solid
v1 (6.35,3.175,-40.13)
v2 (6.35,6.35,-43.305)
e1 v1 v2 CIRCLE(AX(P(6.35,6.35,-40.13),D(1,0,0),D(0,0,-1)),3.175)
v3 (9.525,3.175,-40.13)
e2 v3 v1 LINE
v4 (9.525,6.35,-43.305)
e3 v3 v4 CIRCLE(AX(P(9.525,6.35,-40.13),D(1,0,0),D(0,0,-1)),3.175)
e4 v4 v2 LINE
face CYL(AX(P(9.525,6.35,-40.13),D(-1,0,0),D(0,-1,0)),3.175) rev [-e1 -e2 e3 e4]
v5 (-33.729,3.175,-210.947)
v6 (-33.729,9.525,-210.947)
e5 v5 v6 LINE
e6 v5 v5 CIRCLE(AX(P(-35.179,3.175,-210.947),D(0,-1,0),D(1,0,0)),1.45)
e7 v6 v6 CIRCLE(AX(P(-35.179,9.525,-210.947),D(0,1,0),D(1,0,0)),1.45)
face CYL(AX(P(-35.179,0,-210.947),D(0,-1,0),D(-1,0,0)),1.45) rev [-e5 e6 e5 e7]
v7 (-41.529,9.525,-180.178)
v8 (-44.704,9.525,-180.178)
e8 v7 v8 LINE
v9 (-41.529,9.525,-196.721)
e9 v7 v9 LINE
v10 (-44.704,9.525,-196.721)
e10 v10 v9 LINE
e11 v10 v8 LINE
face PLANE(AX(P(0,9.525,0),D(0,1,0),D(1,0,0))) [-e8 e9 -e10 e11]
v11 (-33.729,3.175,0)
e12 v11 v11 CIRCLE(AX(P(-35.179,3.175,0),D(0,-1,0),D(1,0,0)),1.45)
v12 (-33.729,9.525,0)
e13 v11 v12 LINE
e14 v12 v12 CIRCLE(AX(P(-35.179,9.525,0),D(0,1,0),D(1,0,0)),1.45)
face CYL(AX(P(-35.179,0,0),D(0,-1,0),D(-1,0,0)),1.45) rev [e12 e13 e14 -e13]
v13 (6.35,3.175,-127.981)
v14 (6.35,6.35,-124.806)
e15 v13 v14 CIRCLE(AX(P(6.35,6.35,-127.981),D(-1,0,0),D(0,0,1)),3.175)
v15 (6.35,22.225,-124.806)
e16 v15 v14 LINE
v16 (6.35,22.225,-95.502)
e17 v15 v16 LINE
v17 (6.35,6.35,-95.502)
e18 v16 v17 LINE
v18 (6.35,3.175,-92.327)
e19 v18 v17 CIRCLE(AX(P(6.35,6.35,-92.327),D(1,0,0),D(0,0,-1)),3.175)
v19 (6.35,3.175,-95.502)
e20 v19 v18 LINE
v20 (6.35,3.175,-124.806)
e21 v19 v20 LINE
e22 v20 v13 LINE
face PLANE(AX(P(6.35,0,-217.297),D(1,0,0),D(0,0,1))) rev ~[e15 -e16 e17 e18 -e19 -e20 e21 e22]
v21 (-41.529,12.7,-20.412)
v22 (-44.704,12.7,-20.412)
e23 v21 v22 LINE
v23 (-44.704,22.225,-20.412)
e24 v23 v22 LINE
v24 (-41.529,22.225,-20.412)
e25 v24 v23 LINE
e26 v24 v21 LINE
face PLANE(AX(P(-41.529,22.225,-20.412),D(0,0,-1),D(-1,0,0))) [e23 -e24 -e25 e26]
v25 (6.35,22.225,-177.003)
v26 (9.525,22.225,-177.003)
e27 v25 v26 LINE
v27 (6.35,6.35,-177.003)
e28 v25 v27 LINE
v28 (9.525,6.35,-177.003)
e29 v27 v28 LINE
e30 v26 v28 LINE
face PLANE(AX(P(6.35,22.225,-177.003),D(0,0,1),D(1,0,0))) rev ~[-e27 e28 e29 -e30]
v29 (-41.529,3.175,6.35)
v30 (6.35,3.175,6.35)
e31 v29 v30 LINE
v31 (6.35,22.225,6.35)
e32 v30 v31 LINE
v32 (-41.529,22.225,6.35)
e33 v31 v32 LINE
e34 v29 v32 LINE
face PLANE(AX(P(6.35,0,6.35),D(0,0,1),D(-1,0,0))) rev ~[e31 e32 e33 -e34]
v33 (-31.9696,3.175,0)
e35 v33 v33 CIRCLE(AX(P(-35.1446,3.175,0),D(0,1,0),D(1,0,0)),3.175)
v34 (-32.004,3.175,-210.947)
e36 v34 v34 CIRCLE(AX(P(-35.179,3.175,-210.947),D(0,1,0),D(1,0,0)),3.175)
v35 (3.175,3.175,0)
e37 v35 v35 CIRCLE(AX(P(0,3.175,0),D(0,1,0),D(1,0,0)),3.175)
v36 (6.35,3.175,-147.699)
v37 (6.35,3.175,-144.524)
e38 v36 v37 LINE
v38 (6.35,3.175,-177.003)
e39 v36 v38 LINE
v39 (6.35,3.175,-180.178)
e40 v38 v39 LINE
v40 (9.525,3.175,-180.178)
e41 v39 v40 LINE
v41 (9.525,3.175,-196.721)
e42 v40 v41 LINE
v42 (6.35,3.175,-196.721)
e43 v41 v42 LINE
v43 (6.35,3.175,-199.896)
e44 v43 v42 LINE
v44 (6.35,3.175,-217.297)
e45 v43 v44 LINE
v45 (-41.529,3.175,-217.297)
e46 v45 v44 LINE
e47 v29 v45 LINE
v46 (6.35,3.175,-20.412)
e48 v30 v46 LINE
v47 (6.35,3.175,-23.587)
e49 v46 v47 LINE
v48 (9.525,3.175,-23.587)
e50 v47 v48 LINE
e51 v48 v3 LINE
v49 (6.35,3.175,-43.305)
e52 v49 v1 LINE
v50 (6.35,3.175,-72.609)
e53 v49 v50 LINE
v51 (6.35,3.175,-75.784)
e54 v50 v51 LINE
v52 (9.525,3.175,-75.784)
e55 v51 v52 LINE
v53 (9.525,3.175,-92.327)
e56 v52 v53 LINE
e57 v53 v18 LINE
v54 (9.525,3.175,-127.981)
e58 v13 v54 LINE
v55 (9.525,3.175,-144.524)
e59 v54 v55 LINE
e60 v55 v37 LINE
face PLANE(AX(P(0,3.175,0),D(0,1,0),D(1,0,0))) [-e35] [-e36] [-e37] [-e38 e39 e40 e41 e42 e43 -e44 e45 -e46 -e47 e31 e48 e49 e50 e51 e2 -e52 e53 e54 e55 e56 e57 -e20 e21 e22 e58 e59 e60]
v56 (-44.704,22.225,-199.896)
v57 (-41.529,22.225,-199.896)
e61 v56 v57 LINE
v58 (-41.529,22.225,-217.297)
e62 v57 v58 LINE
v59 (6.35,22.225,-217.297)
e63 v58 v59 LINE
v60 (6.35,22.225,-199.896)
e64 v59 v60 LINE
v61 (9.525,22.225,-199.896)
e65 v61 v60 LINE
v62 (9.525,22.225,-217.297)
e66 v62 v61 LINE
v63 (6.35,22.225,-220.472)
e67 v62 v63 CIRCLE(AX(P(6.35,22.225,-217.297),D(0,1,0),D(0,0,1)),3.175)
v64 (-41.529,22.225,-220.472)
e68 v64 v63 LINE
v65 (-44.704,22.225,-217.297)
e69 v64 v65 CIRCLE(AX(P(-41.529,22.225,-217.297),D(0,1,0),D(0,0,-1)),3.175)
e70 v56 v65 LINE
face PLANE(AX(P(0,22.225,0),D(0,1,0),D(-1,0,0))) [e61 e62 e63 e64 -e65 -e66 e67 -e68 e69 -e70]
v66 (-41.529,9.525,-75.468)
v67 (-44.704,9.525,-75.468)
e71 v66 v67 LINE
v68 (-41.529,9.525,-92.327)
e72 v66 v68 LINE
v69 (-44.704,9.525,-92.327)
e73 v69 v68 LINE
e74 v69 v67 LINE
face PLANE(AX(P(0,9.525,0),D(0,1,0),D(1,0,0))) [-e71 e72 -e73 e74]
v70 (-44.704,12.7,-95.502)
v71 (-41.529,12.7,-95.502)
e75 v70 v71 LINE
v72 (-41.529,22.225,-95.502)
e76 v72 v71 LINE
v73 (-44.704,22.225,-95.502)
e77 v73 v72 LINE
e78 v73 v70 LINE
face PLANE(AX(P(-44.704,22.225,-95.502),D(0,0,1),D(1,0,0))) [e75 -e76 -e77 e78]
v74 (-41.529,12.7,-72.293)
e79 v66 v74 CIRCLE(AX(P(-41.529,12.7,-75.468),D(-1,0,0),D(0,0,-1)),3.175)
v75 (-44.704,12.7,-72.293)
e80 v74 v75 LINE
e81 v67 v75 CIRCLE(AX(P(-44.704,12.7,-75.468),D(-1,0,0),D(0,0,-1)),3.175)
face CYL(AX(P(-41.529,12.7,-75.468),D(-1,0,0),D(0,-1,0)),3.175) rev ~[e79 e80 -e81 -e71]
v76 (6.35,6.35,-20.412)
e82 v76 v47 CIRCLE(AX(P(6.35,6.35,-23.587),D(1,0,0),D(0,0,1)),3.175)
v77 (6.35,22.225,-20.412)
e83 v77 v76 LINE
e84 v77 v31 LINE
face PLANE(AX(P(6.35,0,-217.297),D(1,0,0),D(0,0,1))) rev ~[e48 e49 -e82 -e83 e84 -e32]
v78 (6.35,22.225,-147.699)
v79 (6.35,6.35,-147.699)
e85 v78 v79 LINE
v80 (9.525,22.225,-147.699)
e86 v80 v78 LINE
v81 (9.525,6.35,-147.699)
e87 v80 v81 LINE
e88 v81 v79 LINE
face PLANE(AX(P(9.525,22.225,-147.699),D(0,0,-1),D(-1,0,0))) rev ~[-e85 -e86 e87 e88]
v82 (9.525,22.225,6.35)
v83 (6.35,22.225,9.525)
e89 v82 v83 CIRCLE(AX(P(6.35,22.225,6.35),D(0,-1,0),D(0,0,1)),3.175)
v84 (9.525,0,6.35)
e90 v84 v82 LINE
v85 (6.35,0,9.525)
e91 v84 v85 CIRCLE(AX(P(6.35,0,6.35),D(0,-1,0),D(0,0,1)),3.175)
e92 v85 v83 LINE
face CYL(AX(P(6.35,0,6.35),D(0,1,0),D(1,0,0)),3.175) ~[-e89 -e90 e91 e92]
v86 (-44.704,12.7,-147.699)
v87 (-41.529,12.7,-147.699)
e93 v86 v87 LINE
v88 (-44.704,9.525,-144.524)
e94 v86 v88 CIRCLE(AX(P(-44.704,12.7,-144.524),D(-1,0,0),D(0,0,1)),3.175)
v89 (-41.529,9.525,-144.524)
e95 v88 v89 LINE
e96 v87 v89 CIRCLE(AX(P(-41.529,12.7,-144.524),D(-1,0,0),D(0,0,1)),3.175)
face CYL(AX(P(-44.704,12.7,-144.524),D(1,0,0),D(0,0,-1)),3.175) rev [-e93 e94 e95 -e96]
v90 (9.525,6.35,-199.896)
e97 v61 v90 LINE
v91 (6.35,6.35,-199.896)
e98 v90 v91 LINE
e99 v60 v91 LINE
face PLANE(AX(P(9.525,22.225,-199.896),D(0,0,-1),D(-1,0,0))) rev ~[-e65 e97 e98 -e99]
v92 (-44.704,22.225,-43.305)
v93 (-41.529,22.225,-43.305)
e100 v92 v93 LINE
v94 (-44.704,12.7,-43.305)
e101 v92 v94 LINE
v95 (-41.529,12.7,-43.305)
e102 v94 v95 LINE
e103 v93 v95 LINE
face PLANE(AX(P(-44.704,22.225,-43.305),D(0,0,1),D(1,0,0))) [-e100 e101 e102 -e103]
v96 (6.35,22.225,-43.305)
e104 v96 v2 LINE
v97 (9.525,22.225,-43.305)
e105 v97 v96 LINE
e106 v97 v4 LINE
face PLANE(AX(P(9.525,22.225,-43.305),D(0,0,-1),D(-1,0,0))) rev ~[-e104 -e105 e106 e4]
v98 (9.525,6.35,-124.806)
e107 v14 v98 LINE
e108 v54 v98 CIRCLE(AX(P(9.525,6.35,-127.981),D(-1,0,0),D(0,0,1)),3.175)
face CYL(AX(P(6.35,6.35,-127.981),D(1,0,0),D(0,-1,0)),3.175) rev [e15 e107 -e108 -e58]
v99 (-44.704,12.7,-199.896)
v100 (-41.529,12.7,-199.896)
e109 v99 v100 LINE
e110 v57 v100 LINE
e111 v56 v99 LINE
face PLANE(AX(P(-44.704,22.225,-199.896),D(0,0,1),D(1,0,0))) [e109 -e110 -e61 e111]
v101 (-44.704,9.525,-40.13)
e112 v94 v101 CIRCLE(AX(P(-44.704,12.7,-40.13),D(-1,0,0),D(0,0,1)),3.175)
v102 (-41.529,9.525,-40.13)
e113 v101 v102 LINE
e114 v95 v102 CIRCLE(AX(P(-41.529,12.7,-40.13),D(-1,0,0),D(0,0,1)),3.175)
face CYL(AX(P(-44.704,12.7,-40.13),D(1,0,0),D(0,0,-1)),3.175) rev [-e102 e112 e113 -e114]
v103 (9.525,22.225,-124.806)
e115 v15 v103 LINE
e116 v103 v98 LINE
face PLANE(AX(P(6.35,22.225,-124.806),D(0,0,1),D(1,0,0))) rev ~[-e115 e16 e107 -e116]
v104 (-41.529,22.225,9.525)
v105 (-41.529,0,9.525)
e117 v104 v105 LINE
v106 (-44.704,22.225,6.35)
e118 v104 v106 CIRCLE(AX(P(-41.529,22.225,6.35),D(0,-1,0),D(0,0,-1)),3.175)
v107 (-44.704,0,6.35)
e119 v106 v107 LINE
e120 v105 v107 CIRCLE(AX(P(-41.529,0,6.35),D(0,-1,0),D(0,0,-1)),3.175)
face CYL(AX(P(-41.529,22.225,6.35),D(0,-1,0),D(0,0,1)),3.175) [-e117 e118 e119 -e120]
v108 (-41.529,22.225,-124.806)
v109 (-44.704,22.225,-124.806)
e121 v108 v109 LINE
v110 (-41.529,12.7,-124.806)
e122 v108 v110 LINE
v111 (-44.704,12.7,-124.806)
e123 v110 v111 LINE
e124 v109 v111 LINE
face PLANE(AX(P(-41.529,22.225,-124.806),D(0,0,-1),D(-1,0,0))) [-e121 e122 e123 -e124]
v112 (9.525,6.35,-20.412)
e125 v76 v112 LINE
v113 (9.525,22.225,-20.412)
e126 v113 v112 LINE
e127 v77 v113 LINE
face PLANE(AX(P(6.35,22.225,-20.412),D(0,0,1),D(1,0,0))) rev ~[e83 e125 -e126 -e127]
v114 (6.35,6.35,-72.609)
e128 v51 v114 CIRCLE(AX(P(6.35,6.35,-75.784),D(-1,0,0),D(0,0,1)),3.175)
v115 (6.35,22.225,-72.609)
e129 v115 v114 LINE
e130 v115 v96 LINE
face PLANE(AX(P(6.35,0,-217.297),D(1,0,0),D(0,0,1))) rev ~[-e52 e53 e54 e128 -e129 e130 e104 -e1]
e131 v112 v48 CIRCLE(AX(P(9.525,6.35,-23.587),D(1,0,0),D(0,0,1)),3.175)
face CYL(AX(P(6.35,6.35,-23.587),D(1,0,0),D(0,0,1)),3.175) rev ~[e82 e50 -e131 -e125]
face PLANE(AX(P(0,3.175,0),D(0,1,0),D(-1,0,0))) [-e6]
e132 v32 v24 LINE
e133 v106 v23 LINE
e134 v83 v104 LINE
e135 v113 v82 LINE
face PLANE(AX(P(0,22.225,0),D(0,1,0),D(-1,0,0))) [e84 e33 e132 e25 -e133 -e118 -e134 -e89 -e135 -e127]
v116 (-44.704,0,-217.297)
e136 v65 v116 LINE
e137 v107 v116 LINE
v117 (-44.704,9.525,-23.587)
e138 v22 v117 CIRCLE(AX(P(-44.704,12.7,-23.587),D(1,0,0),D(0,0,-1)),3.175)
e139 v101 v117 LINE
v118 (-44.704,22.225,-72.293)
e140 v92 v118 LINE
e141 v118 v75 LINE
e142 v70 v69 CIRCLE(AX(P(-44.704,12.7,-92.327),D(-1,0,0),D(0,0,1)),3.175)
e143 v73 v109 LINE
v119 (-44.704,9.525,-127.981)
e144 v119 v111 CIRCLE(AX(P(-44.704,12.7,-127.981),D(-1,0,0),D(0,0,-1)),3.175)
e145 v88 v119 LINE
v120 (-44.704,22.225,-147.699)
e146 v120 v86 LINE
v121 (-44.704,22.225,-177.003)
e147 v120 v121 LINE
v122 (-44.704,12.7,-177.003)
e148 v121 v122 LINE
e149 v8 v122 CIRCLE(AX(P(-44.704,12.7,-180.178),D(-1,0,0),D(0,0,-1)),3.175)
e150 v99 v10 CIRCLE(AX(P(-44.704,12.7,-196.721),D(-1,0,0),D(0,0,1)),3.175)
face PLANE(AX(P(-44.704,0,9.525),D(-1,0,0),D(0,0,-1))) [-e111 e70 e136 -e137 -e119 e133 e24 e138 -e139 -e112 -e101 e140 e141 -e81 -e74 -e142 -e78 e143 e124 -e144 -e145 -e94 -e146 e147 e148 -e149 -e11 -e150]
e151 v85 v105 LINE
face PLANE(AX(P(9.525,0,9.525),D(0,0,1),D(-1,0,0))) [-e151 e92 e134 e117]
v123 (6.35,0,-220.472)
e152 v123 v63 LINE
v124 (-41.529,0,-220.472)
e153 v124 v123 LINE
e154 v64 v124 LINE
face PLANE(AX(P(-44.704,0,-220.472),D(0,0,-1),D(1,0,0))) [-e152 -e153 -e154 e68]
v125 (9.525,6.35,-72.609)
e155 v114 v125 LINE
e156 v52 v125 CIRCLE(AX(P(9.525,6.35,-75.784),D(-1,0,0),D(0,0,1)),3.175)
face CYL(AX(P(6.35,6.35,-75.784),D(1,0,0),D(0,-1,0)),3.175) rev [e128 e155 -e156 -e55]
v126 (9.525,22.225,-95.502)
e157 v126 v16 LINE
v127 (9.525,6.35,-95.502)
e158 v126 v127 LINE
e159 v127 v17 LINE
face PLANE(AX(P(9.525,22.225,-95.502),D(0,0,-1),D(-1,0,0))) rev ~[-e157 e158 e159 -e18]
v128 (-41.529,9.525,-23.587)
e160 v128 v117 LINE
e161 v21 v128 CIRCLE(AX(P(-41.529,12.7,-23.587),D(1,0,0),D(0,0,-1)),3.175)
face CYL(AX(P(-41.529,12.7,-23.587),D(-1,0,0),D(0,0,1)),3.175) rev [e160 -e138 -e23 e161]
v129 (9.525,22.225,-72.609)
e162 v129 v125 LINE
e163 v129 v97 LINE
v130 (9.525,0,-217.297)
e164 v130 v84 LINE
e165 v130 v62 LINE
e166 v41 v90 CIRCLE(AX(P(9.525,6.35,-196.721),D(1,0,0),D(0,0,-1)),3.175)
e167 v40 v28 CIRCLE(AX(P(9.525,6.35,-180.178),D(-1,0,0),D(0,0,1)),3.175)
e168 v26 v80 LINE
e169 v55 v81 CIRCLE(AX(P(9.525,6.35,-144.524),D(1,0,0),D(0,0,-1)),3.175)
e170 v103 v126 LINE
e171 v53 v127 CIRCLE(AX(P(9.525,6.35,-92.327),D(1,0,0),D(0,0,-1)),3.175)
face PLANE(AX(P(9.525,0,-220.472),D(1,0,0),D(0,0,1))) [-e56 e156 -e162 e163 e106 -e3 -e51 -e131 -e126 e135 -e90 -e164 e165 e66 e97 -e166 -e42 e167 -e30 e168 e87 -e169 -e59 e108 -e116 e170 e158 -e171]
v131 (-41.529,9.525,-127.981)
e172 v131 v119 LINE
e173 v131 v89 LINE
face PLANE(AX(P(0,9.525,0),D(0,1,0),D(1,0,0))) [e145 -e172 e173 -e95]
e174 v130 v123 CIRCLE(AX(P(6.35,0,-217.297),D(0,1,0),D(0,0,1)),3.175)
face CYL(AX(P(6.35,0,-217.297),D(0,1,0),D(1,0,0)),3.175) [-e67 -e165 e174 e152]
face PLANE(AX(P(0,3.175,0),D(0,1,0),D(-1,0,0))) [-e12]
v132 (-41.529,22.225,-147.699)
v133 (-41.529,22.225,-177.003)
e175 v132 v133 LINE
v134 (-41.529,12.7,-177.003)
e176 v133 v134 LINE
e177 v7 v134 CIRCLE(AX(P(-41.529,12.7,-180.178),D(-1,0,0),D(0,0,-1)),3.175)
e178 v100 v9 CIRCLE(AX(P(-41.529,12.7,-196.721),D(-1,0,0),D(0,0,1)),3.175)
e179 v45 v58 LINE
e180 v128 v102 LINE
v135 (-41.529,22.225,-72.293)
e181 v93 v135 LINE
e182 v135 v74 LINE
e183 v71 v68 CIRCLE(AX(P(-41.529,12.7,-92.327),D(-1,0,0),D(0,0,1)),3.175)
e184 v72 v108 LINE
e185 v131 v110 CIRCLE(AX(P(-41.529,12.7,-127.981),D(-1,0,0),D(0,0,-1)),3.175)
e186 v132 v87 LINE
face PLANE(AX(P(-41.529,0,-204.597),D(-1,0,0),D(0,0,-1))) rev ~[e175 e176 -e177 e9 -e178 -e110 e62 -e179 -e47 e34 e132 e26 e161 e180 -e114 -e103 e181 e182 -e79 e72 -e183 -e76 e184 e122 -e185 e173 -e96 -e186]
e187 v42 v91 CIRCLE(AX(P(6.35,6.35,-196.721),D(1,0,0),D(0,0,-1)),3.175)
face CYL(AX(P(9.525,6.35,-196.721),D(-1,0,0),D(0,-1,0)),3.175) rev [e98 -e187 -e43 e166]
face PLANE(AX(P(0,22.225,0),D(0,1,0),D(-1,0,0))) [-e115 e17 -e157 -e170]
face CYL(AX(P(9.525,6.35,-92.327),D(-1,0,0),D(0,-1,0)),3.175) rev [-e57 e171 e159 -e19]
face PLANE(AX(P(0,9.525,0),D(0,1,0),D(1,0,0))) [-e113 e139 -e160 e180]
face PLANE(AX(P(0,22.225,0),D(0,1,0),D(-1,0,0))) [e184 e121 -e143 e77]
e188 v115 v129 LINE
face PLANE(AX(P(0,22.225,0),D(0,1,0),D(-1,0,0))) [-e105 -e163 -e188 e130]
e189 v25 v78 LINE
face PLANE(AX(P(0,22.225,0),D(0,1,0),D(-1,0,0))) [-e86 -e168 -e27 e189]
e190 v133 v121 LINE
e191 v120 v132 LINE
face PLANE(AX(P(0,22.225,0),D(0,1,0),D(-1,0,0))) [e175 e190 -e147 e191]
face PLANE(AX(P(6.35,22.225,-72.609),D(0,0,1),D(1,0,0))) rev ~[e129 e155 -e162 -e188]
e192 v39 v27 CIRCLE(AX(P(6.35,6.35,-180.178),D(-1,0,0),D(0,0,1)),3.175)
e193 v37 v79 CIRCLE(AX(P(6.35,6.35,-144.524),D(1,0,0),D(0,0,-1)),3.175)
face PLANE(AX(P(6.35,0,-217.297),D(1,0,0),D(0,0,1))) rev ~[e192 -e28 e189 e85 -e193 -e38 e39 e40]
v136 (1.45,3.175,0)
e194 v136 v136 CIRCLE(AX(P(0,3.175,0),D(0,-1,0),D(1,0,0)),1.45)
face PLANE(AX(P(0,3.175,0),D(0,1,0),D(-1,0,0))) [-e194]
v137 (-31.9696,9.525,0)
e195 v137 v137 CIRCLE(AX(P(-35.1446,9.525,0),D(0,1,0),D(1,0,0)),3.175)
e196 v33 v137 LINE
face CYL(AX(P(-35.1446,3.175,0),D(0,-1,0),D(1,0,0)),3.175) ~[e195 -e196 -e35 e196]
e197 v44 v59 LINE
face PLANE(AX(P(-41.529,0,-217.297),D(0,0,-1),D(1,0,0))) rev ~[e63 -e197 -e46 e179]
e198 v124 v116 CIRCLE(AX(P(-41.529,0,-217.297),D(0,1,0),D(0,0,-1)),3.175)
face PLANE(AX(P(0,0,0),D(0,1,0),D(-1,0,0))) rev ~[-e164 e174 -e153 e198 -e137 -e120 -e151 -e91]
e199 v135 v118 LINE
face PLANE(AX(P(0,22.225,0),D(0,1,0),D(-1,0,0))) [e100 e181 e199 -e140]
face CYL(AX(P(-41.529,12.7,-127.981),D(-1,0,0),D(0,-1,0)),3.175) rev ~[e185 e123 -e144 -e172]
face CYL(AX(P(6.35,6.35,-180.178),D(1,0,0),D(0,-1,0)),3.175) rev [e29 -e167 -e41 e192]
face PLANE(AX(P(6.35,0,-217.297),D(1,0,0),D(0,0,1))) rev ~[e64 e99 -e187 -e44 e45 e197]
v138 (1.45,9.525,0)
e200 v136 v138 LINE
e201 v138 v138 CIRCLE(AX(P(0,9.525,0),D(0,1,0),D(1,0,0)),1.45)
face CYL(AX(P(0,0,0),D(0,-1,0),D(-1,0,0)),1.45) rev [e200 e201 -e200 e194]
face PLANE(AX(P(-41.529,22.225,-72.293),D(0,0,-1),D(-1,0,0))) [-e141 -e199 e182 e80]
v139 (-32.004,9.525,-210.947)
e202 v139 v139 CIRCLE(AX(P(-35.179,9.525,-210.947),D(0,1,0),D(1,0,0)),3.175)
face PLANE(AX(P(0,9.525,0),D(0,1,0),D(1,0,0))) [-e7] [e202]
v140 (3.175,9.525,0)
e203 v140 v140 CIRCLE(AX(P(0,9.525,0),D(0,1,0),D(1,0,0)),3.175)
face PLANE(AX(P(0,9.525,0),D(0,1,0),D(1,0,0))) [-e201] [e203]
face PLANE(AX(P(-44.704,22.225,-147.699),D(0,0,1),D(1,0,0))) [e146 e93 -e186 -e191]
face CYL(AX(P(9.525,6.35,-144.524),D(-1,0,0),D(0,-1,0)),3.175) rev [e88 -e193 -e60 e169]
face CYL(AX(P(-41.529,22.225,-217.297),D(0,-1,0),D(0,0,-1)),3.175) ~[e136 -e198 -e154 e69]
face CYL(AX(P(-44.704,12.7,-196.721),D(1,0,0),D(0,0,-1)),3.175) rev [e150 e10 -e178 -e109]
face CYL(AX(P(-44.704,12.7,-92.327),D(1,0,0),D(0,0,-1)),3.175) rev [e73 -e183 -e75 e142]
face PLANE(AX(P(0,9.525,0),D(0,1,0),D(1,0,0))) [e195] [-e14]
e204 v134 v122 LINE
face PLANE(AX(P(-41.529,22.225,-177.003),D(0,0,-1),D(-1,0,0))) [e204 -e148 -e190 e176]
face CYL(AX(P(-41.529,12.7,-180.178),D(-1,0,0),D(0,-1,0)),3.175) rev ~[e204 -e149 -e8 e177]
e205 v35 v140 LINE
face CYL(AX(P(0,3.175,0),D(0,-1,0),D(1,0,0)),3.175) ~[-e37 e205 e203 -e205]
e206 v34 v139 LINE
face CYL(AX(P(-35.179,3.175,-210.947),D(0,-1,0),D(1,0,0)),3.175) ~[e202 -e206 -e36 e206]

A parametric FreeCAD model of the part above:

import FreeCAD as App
import Part
import Sketcher
from FreeCAD import Vector
Q = App.Units.Quantity


def edges_at(feature, points):
    """Names of the edges that pass closest to the given points."""
    edges = feature.Shape.Edges
    near = lambda p: min(range(len(edges)), key=lambda i: edges[i].distToShape(Part.Vertex(*p))[0])
    return sorted({f"Edge{near(p) + 1}" for p in points})

doc = App.newDocument("Part")
body = doc.addObject("PartDesign::Body", "Body")

sketch1 = body.newObject("Sketcher::SketchObject", "Sketch")
sketch1.AttachmentSupport = (doc.getObject("XZ_Plane"), [""])
sketch1.MapMode = "FlatFace"
sketch1.addGeometry(Part.LineSegment(Vector(-44.7, 9.5, 0), Vector(9.5, 9.5, 0)), False)
sketch1.addGeometry(Part.LineSegment(Vector(9.5, 9.5, 0), Vector(9.5, -220.5, 0)), False)
sketch1.addGeometry(Part.LineSegment(Vector(9.5, -220.5, 0), Vector(-44.7, -220.5, 0)), False)
sketch1.addGeometry(Part.LineSegment(Vector(-44.7, -220.5, 0), Vector(-44.7, 9.5, 0)), False)
sketch1.addGeometry(Part.Circle(Vector(0, 0, 0), Vector(0, 0, 1), 1.4), False)
sketch1.addGeometry(Part.Circle(Vector(-35.2, 0, 0), Vector(0, 0, 1), 1.4), False)
sketch1.addGeometry(Part.Circle(Vector(-35.2, -210.9, 0), Vector(0, 0, 1), 1.4), False)
sketch1.addConstraint(Sketcher.Constraint("Coincident", 0, 2, 1, 1))
sketch1.addConstraint(Sketcher.Constraint("Coincident", 1, 2, 2, 1))
sketch1.addConstraint(Sketcher.Constraint("Coincident", 2, 2, 3, 1))
sketch1.addConstraint(Sketcher.Constraint("Coincident", 3, 2, 0, 1))
sketch1.addConstraint(Sketcher.Constraint("Horizontal", 0))
sketch1.addConstraint(Sketcher.Constraint("Vertical", 1))
sketch1.addConstraint(Sketcher.Constraint("Horizontal", 2))
sketch1.addConstraint(Sketcher.Constraint("Vertical", 3))
sketch1.addConstraint(Sketcher.Constraint("Coincident", 4, 3, -1, 1))
sketch1.addConstraint(Sketcher.Constraint("Equal", 4, 5))
sketch1.addConstraint(Sketcher.Constraint("Equal", 5, 6))
sketch1.addConstraint(Sketcher.Constraint("PointOnObject", 5, 3, -1))
sketch1.addConstraint(Sketcher.Constraint("Vertical", 5, 3, 6, 3))
sketch1.addConstraint(Sketcher.Constraint("Diameter", 4, Q("2.9 mm")))
sketch1.addConstraint(Sketcher.Constraint("DistanceX", 5, 3, -1, 1, Q("1.385 in")))
sketch1.addConstraint(Sketcher.Constraint("DistanceY", 6, 3, -1, 1, Q("8.305 in")))
sketch1.addConstraint(Sketcher.Constraint("DistanceX", 0, 1, 0, 2, Q("2.135 in")))
sketch1.addConstraint(Sketcher.Constraint("DistanceY", 1, 2, 1, 1, Q("9.055 in")))
sketch1.addConstraint(Sketcher.Constraint("DistanceY", 1, 2, -1, 1, Q("8.68 in")))
sketch1.addConstraint(Sketcher.Constraint("DistanceX", 2, 2, -1, 1, Q("1.76 in")))
pad1 = body.newObject("PartDesign::Pad", "Pad")
pad1.Profile = sketch1
pad1.Length = Q("0.125 in")
pad1.Reversed = True

sketch2 = body.newObject("Sketcher::SketchObject", "Sketch001")
sketch2.AttachmentSupport = (doc.getObject("XZ_Plane"), [""])
sketch2.MapMode = "FlatFace"
sketch2.addGeometry(Part.LineSegment(Vector(-45, 10, 0), Vector(10, 10, 0)), False)
sketch2.addGeometry(Part.LineSegment(Vector(10, 10, 0), Vector(10, -220, 0)), False)
sketch2.addGeometry(Part.LineSegment(Vector(10, -220, 0), Vector(-45, -220, 0)), False)
sketch2.addGeometry(Part.LineSegment(Vector(-45, -220, 0), Vector(-45, 10, 0)), False)
sketch2.addGeometry(Part.LineSegment(Vector(-42, -217, 0), Vector(6, -217, 0)), False)
sketch2.addGeometry(Part.LineSegment(Vector(6, -217, 0), Vector(6, 6, 0)), False)
sketch2.addGeometry(Part.LineSegment(Vector(6, 6, 0), Vector(-42, 6, 0)), False)
sketch2.addGeometry(Part.LineSegment(Vector(-42, 6, 0), Vector(-42, -217, 0)), False)
sketch2.addConstraint(Sketcher.Constraint("Coincident", 0, 2, 1, 1))
sketch2.addConstraint(Sketcher.Constraint("Coincident", 1, 2, 2, 1))
sketch2.addConstraint(Sketcher.Constraint("Coincident", 2, 2, 3, 1))
sketch2.addConstraint(Sketcher.Constraint("Coincident", 3, 2, 0, 1))
sketch2.addConstraint(Sketcher.Constraint("Coincident", 4, 2, 5, 1))
sketch2.addConstraint(Sketcher.Constraint("Coincident", 5, 2, 6, 1))
sketch2.addConstraint(Sketcher.Constraint("Coincident", 6, 2, 7, 1))
sketch2.addConstraint(Sketcher.Constraint("Coincident", 7, 2, 4, 1))
sketch2.addConstraint(Sketcher.Constraint("Horizontal", 0))
sketch2.addConstraint(Sketcher.Constraint("Vertical", 1))
sketch2.addConstraint(Sketcher.Constraint("Horizontal", 2))
sketch2.addConstraint(Sketcher.Constraint("Vertical", 3))
sketch2.addConstraint(Sketcher.Constraint("Horizontal", 4))
sketch2.addConstraint(Sketcher.Constraint("Vertical", 5))
sketch2.addConstraint(Sketcher.Constraint("Horizontal", 6))
sketch2.addConstraint(Sketcher.Constraint("Vertical", 7))
sketch2.addConstraint(Sketcher.Constraint("DistanceX", 4, 2, 1, 2, Q("0.125 in")))
sketch2.addConstraint(Sketcher.Constraint("DistanceY", 1, 2, 4, 2, Q("0.125 in")))
sketch2.addConstraint(Sketcher.Constraint("DistanceY", 5, 2, 0, 2, Q("0.125 in")))
sketch2.addConstraint(Sketcher.Constraint("DistanceX", 3, 2, 6, 2, Q("0.125 in")))
sketch2.addConstraint(Sketcher.Constraint("DistanceX", 0, 1, 0, 2, Q("2.135 in")))
sketch2.addConstraint(Sketcher.Constraint("DistanceY", 1, 2, 1, 1, Q("9.055 in")))
sketch2.addConstraint(Sketcher.Constraint("DistanceY", 1, 2, -1, 1, Q("8.68 in")))
sketch2.addConstraint(Sketcher.Constraint("DistanceX", 2, 2, -1, 1, Q("1.76 in")))
pad2 = body.newObject("PartDesign::Pad", "Pad001")
pad2.Profile = sketch2
pad2.Length = Q("0.875 in")
pad2.Reversed = True

sketch3 = body.newObject("Sketcher::SketchObject", "Sketch002")
sketch3.AttachmentSupport = (doc.getObject("XZ_Plane"), [""])
sketch3.MapMode = "FlatFace"
sketch3.AttachmentOffset = App.Placement(Vector(0, 0, -0.125 * 25.4), App.Rotation())
sketch3.addGeometry(Part.Circle(Vector(-35.1, 0, 0), Vector(0, 0, 1), 3.2), False)
sketch3.addGeometry(Part.Circle(Vector(-35.2, 0, 0), Vector(0, 0, 1), 1.4), False)
sketch3.addGeometry(Part.Circle(Vector(0, 0, 0), Vector(0, 0, 1), 3.2), False)
sketch3.addGeometry(Part.Circle(Vector(0, 0, 0), Vector(0, 0, 1), 1.4), False)
sketch3.addGeometry(Part.Circle(Vector(-35.2, -210.9, 0), Vector(0, 0, 1), 3.2), False)
sketch3.addGeometry(Part.Circle(Vector(-35.2, -210.9, 0), Vector(0, 0, 1), 1.4), False)
sketch3.addConstraint(Sketcher.Constraint("Coincident", 2, 3, -1, 1))
sketch3.addConstraint(Sketcher.Constraint("Coincident", 3, 3, -1, 1))
sketch3.addConstraint(Sketcher.Constraint("Coincident", 5, 3, 4, 3))
sketch3.addConstraint(Sketcher.Constraint("Equal", 0, 2))
sketch3.addConstraint(Sketcher.Constraint("Equal", 1, 3))
sketch3.addConstraint(Sketcher.Constraint("Equal", 2, 4))
sketch3.addConstraint(Sketcher.Constraint("Equal", 3, 5))
sketch3.addConstraint(Sketcher.Constraint("PointOnObject", 0, 3, -1))
sketch3.addConstraint(Sketcher.Constraint("PointOnObject", 1, 3, -1))
sketch3.addConstraint(Sketcher.Constraint("Vertical", 1, 3, 4, 3))
sketch3.addConstraint(Sketcher.Constraint("Diameter", 0, Q("0.25 in")))
sketch3.addConstraint(Sketcher.Constraint("Diameter", 1, Q("2.9 mm")))
sketch3.addConstraint(Sketcher.Constraint("DistanceX", 1, 3, -1, 1, Q("1.385 in")))
sketch3.addConstraint(Sketcher.Constraint("DistanceY", 4, 3, -1, 1, Q("8.305 in")))
sketch3.addConstraint(Sketcher.Constraint("DistanceX", 0, 3, -1, 1, Q("35.1446 mm")))
pad3 = body.newObject("PartDesign::Pad", "Pad002")
pad3.Profile = sketch3
pad3.Length = Q("0.25 in")
pad3.Reversed = True

sketch4 = body.newObject("Sketcher::SketchObject", "Sketch003")
sketch4.AttachmentSupport = (doc.getObject("XZ_Plane"), [""])
sketch4.MapMode = "FlatFace"
sketch4.addGeometry(Part.Circle(Vector(0, 0, 0), Vector(0, 0, 1), 1.4), False)
sketch4.addGeometry(Part.Circle(Vector(-35.2, 0, 0), Vector(0, 0, 1), 1.4), False)
sketch4.addGeometry(Part.Circle(Vector(-35.2, -210.9, 0), Vector(0, 0, 1), 1.4), False)
sketch4.addConstraint(Sketcher.Constraint("Coincident", 0, 3, -1, 1))
sketch4.addConstraint(Sketcher.Constraint("Equal", 0, 1))
sketch4.addConstraint(Sketcher.Constraint("Equal", 1, 2))
sketch4.addConstraint(Sketcher.Constraint("PointOnObject", 1, 3, -1))
sketch4.addConstraint(Sketcher.Constraint("Vertical", 1, 3, 2, 3))
sketch4.addConstraint(Sketcher.Constraint("Diameter", 0, Q("2.9 mm")))
sketch4.addConstraint(Sketcher.Constraint("DistanceX", 1, 3, -1, 1, Q("1.385 in")))
sketch4.addConstraint(Sketcher.Constraint("DistanceY", 2, 3, -1, 1, Q("8.305 in")))
pad4 = body.newObject("PartDesign::Pad", "Pad003")
pad4.Profile = sketch4
pad4.Length = Q("0.125 in")
pad4.Reversed = True

sketch5 = body.newObject("Sketcher::SketchObject", "Sketch004")
sketch5.AttachmentSupport = (doc.getObject("XZ_Plane"), [""])
sketch5.MapMode = "FlatFace"
sketch5.AttachmentOffset = App.Placement(Vector(0, 0, -0.875 * 25.4), App.Rotation())
sketch5.addGeometry(Part.LineSegment(Vector(-41.5, -199.9, 0), Vector(-44.7, -199.9, 0)), False)
sketch5.addGeometry(Part.LineSegment(Vector(-44.7, -199.9, 0), Vector(-44.7, -177, 0)), False)
sketch5.addGeometry(Part.LineSegment(Vector(-44.7, -177, 0), Vector(-41.5, -177, 0)), False)
sketch5.addGeometry(Part.LineSegment(Vector(-41.5, -177, 0), Vector(-41.5, -199.9, 0)), False)
sketch5.addGeometry(Part.LineSegment(Vector(-41.5, -147.7, 0), Vector(-44.7, -147.7, 0)), False)
sketch5.addGeometry(Part.LineSegment(Vector(-44.7, -147.7, 0), Vector(-44.7, -124.8, 0)), False)
sketch5.addGeometry(Part.LineSegment(Vector(-44.7, -124.8, 0), Vector(-41.5, -124.8, 0)), False)
sketch5.addGeometry(Part.LineSegment(Vector(-41.5, -124.8, 0), Vector(-41.5, -147.7, 0)), False)
sketch5.addGeometry(Part.LineSegment(Vector(-41.5, -95.5, 0), Vector(-44.7, -95.5, 0)), False)
sketch5.addGeometry(Part.LineSegment(Vector(-44.7, -95.5, 0), Vector(-44.7, -72.3, 0)), False)
sketch5.addGeometry(Part.LineSegment(Vector(-44.7, -72.3, 0), Vector(-41.5, -72.3, 0)), False)
sketch5.addGeometry(Part.LineSegment(Vector(-41.5, -72.3, 0), Vector(-41.5, -95.5, 0)), False)
sketch5.addGeometry(Part.LineSegment(Vector(-41.5, -43.3, 0), Vector(-44.7, -43.3, 0)), False)
sketch5.addGeometry(Part.LineSegment(Vector(-44.7, -43.3, 0), Vector(-44.7, -20.4, 0)), False)
sketch5.addGeometry(Part.LineSegment(Vector(-44.7, -20.4, 0), Vector(-41.5, -20.4, 0)), False)
sketch5.addGeometry(Part.LineSegment(Vector(-41.5, -20.4, 0), Vector(-41.5, -43.3, 0)), False)
sketch5.addConstraint(Sketcher.Constraint("Coincident", 0, 2, 1, 1))
sketch5.addConstraint(Sketcher.Constraint("Coincident", 1, 2, 2, 1))
sketch5.addConstraint(Sketcher.Constraint("Coincident", 2, 2, 3, 1))
sketch5.addConstraint(Sketcher.Constraint("Coincident", 3, 2, 0, 1))
sketch5.addConstraint(Sketcher.Constraint("Coincident", 4, 2, 5, 1))
sketch5.addConstraint(Sketcher.Constraint("Coincident", 5, 2, 6, 1))
sketch5.addConstraint(Sketcher.Constraint("Coincident", 6, 2, 7, 1))
sketch5.addConstraint(Sketcher.Constraint("Coincident", 7, 2, 4, 1))
sketch5.addConstraint(Sketcher.Constraint("Coincident", 8, 2, 9, 1))
sketch5.addConstraint(Sketcher.Constraint("Coincident", 9, 2, 10, 1))
sketch5.addConstraint(Sketcher.Constraint("Coincident", 10, 2, 11, 1))
sketch5.addConstraint(Sketcher.Constraint("Coincident", 11, 2, 8, 1))
sketch5.addConstraint(Sketcher.Constraint("Coincident", 12, 2, 13, 1))
sketch5.addConstraint(Sketcher.Constraint("Coincident", 13, 2, 14, 1))
sketch5.addConstraint(Sketcher.Constraint("Coincident", 14, 2, 15, 1))
sketch5.addConstraint(Sketcher.Constraint("Coincident", 15, 2, 12, 1))
sketch5.addConstraint(Sketcher.Constraint("Horizontal", 0))
sketch5.addConstraint(Sketcher.Constraint("Vertical", 1))
sketch5.addConstraint(Sketcher.Constraint("Horizontal", 2))
sketch5.addConstraint(Sketcher.Constraint("Vertical", 3))
sketch5.addConstraint(Sketcher.Constraint("Horizontal", 4))
sketch5.addConstraint(Sketcher.Constraint("Vertical", 5))
sketch5.addConstraint(Sketcher.Constraint("Horizontal", 6))
sketch5.addConstraint(Sketcher.Constraint("Vertical", 7))
sketch5.addConstraint(Sketcher.Constraint("Horizontal", 8))
sketch5.addConstraint(Sketcher.Constraint("Vertical", 9))
sketch5.addConstraint(Sketcher.Constraint("Horizontal", 10))
sketch5.addConstraint(Sketcher.Constraint("Vertical", 11))
sketch5.addConstraint(Sketcher.Constraint("Horizontal", 12))
sketch5.addConstraint(Sketcher.Constraint("Vertical", 13))
sketch5.addConstraint(Sketcher.Constraint("Horizontal", 14))
sketch5.addConstraint(Sketcher.Constraint("Vertical", 15))
sketch5.addConstraint(Sketcher.Constraint("Vertical", 1, 2, 4, 2))
sketch5.addConstraint(Sketcher.Constraint("Vertical", 3, 2, 6, 2))
sketch5.addConstraint(Sketcher.Constraint("Vertical", 5, 2, 8, 2))
sketch5.addConstraint(Sketcher.Constraint("Vertical", 7, 2, 10, 2))
sketch5.addConstraint(Sketcher.Constraint("Vertical", 9, 2, 12, 2))
sketch5.addConstraint(Sketcher.Constraint("Vertical", 11, 2, 14, 2))
sketch5.addConstraint(Sketcher.Constraint("Equal", 3, 5))
sketch5.addConstraint(Sketcher.Constraint("Equal", 7, 13))
sketch5.addConstraint(Sketcher.Constraint("DistanceX", 0, 2, 0, 1, Q("0.125 in")))
sketch5.addConstraint(Sketcher.Constraint("DistanceX", 0, 2, -1, 1, Q("1.76 in")))
sketch5.addConstraint(Sketcher.Constraint("DistanceY", 1, 1, 1, 2, Q("0.9013 in")))
sketch5.addConstraint(Sketcher.Constraint("DistanceY", 0, 2, 4, 2, Q("2.055 in")))
sketch5.addConstraint(Sketcher.Constraint("DistanceY", 4, 2, 8, 2, Q("2.055 in")))
sketch5.addConstraint(Sketcher.Constraint("DistanceY", 8, 2, 12, 2, Q("2.055 in")))
sketch5.addConstraint(Sketcher.Constraint("DistanceY", 9, 1, 9, 2, Q("23.209 mm")))
sketch5.addConstraint(Sketcher.Constraint("DistanceY", 0, 2, -1, 1, Q("199.896 mm")))
pocket1 = body.newObject("PartDesign::Pocket", "Pocket")
pocket1.Profile = sketch5
pocket1.Length = Q("0.5 in")
pocket1.Reversed = True

sketch6 = body.newObject("Sketcher::SketchObject", "Sketch005")
sketch6.AttachmentSupport = (doc.getObject("XZ_Plane"), [""])
sketch6.MapMode = "FlatFace"
sketch6.AttachmentOffset = App.Placement(Vector(0, 0, -0.875 * 25.4), App.Rotation())
sketch6.addGeometry(Part.LineSegment(Vector(9.5, -177, 0), Vector(9.5, -199.9, 0)), False)
sketch6.addGeometry(Part.LineSegment(Vector(9.5, -199.9, 0), Vector(6.3, -199.9, 0)), False)
sketch6.addGeometry(Part.LineSegment(Vector(6.3, -199.9, 0), Vector(6.3, -177, 0)), False)
sketch6.addGeometry(Part.LineSegment(Vector(6.3, -177, 0), Vector(9.5, -177, 0)), False)
sketch6.addGeometry(Part.LineSegment(Vector(9.5, -124.8, 0), Vector(9.5, -147.7, 0)), False)
sketch6.addGeometry(Part.LineSegment(Vector(9.5, -147.7, 0), Vector(6.3, -147.7, 0)), False)
sketch6.addGeometry(Part.LineSegment(Vector(6.3, -147.7, 0), Vector(6.3, -124.8, 0)), False)
sketch6.addGeometry(Part.LineSegment(Vector(6.3, -124.8, 0), Vector(9.5, -124.8, 0)), False)
sketch6.addGeometry(Part.LineSegment(Vector(9.5, -72.6, 0), Vector(9.5, -95.5, 0)), False)
sketch6.addGeometry(Part.LineSegment(Vector(9.5, -95.5, 0), Vector(6.3, -95.5, 0)), False)
sketch6.addGeometry(Part.LineSegment(Vector(6.3, -95.5, 0), Vector(6.3, -72.6, 0)), False)
sketch6.addGeometry(Part.LineSegment(Vector(6.3, -72.6, 0), Vector(9.5, -72.6, 0)), False)
sketch6.addGeometry(Part.LineSegment(Vector(9.5, -20.4, 0), Vector(9.5, -43.3, 0)), False)
sketch6.addGeometry(Part.LineSegment(Vector(9.5, -43.3, 0), Vector(6.3, -43.3, 0)), False)
sketch6.addGeometry(Part.LineSegment(Vector(6.3, -43.3, 0), Vector(6.3, -20.4, 0)), False)
sketch6.addGeometry(Part.LineSegment(Vector(6.3, -20.4, 0), Vector(9.5, -20.4, 0)), False)
sketch6.addConstraint(Sketcher.Constraint("Coincident", 0, 2, 1, 1))
sketch6.addConstraint(Sketcher.Constraint("Coincident", 1, 2, 2, 1))
sketch6.addConstraint(Sketcher.Constraint("Coincident", 2, 2, 3, 1))
sketch6.addConstraint(Sketcher.Constraint("Coincident", 3, 2, 0, 1))
sketch6.addConstraint(Sketcher.Constraint("Coincident", 4, 2, 5, 1))
sketch6.addConstraint(Sketcher.Constraint("Coincident", 5, 2, 6, 1))
sketch6.addConstraint(Sketcher.Constraint("Coincident", 6, 2, 7, 1))
sketch6.addConstraint(Sketcher.Constraint("Coincident", 7, 2, 4, 1))
sketch6.addConstraint(Sketcher.Constraint("Coincident", 8, 2, 9, 1))
sketch6.addConstraint(Sketcher.Constraint("Coincident", 9, 2, 10, 1))
sketch6.addConstraint(Sketcher.Constraint("Coincident", 10, 2, 11, 1))
sketch6.addConstraint(Sketcher.Constraint("Coincident", 11, 2, 8, 1))
sketch6.addConstraint(Sketcher.Constraint("Coincident", 12, 2, 13, 1))
sketch6.addConstraint(Sketcher.Constraint("Coincident", 13, 2, 14, 1))
sketch6.addConstraint(Sketcher.Constraint("Coincident", 14, 2, 15, 1))
sketch6.addConstraint(Sketcher.Constraint("Coincident", 15, 2, 12, 1))
sketch6.addConstraint(Sketcher.Constraint("Vertical", 0))
sketch6.addConstraint(Sketcher.Constraint("Horizontal", 1))
sketch6.addConstraint(Sketcher.Constraint("Vertical", 2))
sketch6.addConstraint(Sketcher.Constraint("Horizontal", 3))
sketch6.addConstraint(Sketcher.Constraint("Vertical", 4))
sketch6.addConstraint(Sketcher.Constraint("Horizontal", 5))
sketch6.addConstraint(Sketcher.Constraint("Vertical", 6))
sketch6.addConstraint(Sketcher.Constraint("Horizontal", 7))
sketch6.addConstraint(Sketcher.Constraint("Vertical", 8))
sketch6.addConstraint(Sketcher.Constraint("Horizontal", 9))
sketch6.addConstraint(Sketcher.Constraint("Vertical", 10))
sketch6.addConstraint(Sketcher.Constraint("Horizontal", 11))
sketch6.addConstraint(Sketcher.Constraint("Vertical", 12))
sketch6.addConstraint(Sketcher.Constraint("Horizontal", 13))
sketch6.addConstraint(Sketcher.Constraint("Vertical", 14))
sketch6.addConstraint(Sketcher.Constraint("Horizontal", 15))
sketch6.addConstraint(Sketcher.Constraint("Vertical", 3, 2, 4, 2))
sketch6.addConstraint(Sketcher.Constraint("Vertical", 2, 2, 5, 2))
sketch6.addConstraint(Sketcher.Constraint("Vertical", 7, 2, 8, 2))
sketch6.addConstraint(Sketcher.Constraint("Vertical", 6, 2, 9, 2))
sketch6.addConstraint(Sketcher.Constraint("Vertical", 11, 2, 12, 2))
sketch6.addConstraint(Sketcher.Constraint("Vertical", 10, 2, 13, 2))
sketch6.addConstraint(Sketcher.Constraint("Equal", 2, 4))
sketch6.addConstraint(Sketcher.Constraint("Equal", 6, 8))
sketch6.addConstraint(Sketcher.Constraint("Equal", 10, 12))
sketch6.addConstraint(Sketcher.Constraint("DistanceX", 1, 2, 1, 1, Q("0.125 in")))
sketch6.addConstraint(Sketcher.Constraint("DistanceX", -1, 1, 1, 2, Q("0.25 in")))
sketch6.addConstraint(Sketcher.Constraint("DistanceY", 0, 2, 0, 1, Q("0.9013 in")))
sketch6.addConstraint(Sketcher.Constraint("DistanceY", 0, 2, 4, 2, Q("2.055 in")))
sketch6.addConstraint(Sketcher.Constraint("DistanceY", 4, 2, 8, 2, Q("2.055 in")))
sketch6.addConstraint(Sketcher.Constraint("DistanceY", 8, 2, 12, 2, Q("2.055 in")))
sketch6.addConstraint(Sketcher.Constraint("DistanceY", 0, 2, -1, 1, Q("199.896 mm")))
pocket2 = body.newObject("PartDesign::Pocket", "Pocket001")
pocket2.Profile = sketch6
pocket2.Length = Q("0.75 in")
pocket2.Reversed = True
doc.recompute()

fillet = body.newObject("PartDesign::Fillet", "Fillet")
fillet.Base = (pocket2, edges_at(pocket2, [
    (7.938, 3.175, -20.412),
    (7.938, 3.175, -43.305),
    (7.938, 3.175, -72.609),
    (7.938, 3.175, -95.502),
    (7.938, 3.175, -124.806),
    (7.938, 3.175, -147.699),
    (7.938, 3.175, -199.896),
    (7.938, 3.175, -177.003),
    (-43.117, 9.525, -20.412),
    (-43.117, 9.525, -43.305),
    (-43.117, 9.525, -95.502),
    (-43.117, 9.525, -147.699),
    (-43.117, 9.525, -199.896),
    (-43.117, 9.525, -72.293),
    (-43.117, 9.525, -124.806),
    (-43.117, 9.525, -177.003),
]))
fillet.Radius = Q("0.125 in")
doc.recompute()

fillet2 = body.newObject("PartDesign::Fillet", "Fillet001")
fillet2.Base = (fillet, edges_at(fillet, [
    (9.525, 11.113, 9.525),
    (9.525, 11.113, -220.472),
    (-44.704, 11.113, -220.472),
    (-44.704, 11.113, 9.525),
]))
fillet2.Radius = Q("0.125 in")

doc.recompute()
